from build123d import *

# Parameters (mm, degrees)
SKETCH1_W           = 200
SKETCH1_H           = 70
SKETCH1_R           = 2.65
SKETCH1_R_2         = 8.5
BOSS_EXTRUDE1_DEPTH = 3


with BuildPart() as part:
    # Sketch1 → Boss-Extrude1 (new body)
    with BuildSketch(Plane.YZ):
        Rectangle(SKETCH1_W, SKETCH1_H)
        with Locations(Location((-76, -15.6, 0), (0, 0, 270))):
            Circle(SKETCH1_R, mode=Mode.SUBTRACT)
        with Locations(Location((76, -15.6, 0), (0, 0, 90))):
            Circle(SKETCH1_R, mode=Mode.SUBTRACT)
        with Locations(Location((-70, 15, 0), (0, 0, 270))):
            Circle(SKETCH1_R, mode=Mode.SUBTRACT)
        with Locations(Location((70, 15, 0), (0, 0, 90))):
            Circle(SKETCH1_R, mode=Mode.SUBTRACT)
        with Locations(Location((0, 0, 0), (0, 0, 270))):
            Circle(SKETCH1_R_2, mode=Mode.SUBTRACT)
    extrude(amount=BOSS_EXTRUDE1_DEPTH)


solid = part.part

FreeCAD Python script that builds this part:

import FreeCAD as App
import Part
import Sketcher
Q = App.Units.Quantity


def add_polygon(sketch, points):
    """Adds a closed chain of lines whose ends are joined by coincident constraints."""
    first, n = sketch.GeometryCount, len(points)
    for a, b in zip(points, points[1:] + points[:1]):
        sketch.addGeometry(Part.LineSegment(App.Vector(*a, 0), App.Vector(*b, 0)), False)
    for i in range(n):
        sketch.addConstraint(Sketcher.Constraint("Coincident", first + i, 2, first + (i + 1) % n, 1))

doc = App.newDocument("Part")
params = doc.addObject("Spreadsheet::Sheet", "Params")
for row, (alias, value) in enumerate([
    ("sketch1_diameter", "17 mm"),
    ("sketch1_diameter2", "5.3 mm"),
    ("sketch1_width", "200 mm"),
    ("sketch1_height", "70 mm"),
    ("pad1_length", "3 mm"),
], start=1):
    params.set(f"A{row}", alias)
    params.set(f"B{row}", "=" + value)
    params.setAlias(f"B{row}", alias)

body = doc.addObject("PartDesign::Body", "Body")

# Sketch on YZ plane
sketch1 = body.newObject("Sketcher::SketchObject", "Sketch")
sketch1.AttachmentSupport = (doc.getObject("YZ_Plane"), [""])
sketch1.MapMode = "FlatFace"
add_polygon(sketch1, [(-100, 35), (-100, -35), (100, -35), (100, 35)])  # lines 0-3
sketch1.addGeometry(Part.Circle(App.Vector(-76, -15.6, 0), App.Vector(0, 0, 1), 2.6), False)  # 4
sketch1.addGeometry(Part.Circle(App.Vector(76, -15.6, 0), App.Vector(0, 0, 1), 2.6), False)  # 5
sketch1.addGeometry(Part.Circle(App.Vector(-70, 15, 0), App.Vector(0, 0, 1), 2.6), False)  # 6
sketch1.addGeometry(Part.Circle(App.Vector(0, 0, 0), App.Vector(0, 0, 1), 8.5), False)  # 7
sketch1.addGeometry(Part.Circle(App.Vector(70, 15, 0), App.Vector(0, 0, 1), 2.6), False)  # 8
sketch1.addConstraint(Sketcher.Constraint("Vertical", 0))
sketch1.addConstraint(Sketcher.Constraint("Horizontal", 1))
sketch1.addConstraint(Sketcher.Constraint("Vertical", 2))
sketch1.addConstraint(Sketcher.Constraint("Horizontal", 3))
sketch1.addConstraint(Sketcher.Constraint("Coincident", 7, 3, -1, 1))
sketch1.addConstraint(Sketcher.Constraint("Equal", 4, 5))
sketch1.addConstraint(Sketcher.Constraint("Equal", 5, 6))
sketch1.addConstraint(Sketcher.Constraint("Equal", 6, 8))
sketch1.addConstraint(Sketcher.Constraint("Symmetric", 0, 2, 2, 2, -1, 1))
sketch1.addConstraint(Sketcher.Constraint("Symmetric", 4, 3, 5, 3, -2))
sketch1.addConstraint(Sketcher.Constraint("Symmetric", 6, 3, 8, 3, -2))
sketch1.addConstraint(Sketcher.Constraint("Diameter", 7, Q("17 mm")))
sketch1.addConstraint(Sketcher.Constraint("Diameter", 4, Q("5.3 mm")))
sketch1.addConstraint(Sketcher.Constraint("DistanceX", 1, 1, 1, 2, Q("200 mm")))
sketch1.addConstraint(Sketcher.Constraint("DistanceY", 0, 2, 0, 1, Q("70 mm")))
sketch1.addConstraint(Sketcher.Constraint("DistanceX", 4, 3, -1, 1, Q("76 mm")))
sketch1.addConstraint(Sketcher.Constraint("DistanceX", 6, 3, -1, 1, Q("70 mm")))
sketch1.addConstraint(Sketcher.Constraint("DistanceY", -1, 1, 6, 3, Q("15 mm")))
sketch1.addConstraint(Sketcher.Constraint("DistanceY", 4, 3, -1, 1, Q("15.6 mm")))
sketch1.setExpression("Constraints[15]", "Params.sketch1_diameter")
sketch1.setExpression("Constraints[16]", "Params.sketch1_diameter2")
sketch1.setExpression("Constraints[17]", "Params.sketch1_width")
sketch1.setExpression("Constraints[18]", "Params.sketch1_height")
pad1 = body.newObject("PartDesign::Pad", "Pad")
pad1.Profile = sketch1
pad1.setExpression("Length", "Params.pad1_length")

doc.recompute()
